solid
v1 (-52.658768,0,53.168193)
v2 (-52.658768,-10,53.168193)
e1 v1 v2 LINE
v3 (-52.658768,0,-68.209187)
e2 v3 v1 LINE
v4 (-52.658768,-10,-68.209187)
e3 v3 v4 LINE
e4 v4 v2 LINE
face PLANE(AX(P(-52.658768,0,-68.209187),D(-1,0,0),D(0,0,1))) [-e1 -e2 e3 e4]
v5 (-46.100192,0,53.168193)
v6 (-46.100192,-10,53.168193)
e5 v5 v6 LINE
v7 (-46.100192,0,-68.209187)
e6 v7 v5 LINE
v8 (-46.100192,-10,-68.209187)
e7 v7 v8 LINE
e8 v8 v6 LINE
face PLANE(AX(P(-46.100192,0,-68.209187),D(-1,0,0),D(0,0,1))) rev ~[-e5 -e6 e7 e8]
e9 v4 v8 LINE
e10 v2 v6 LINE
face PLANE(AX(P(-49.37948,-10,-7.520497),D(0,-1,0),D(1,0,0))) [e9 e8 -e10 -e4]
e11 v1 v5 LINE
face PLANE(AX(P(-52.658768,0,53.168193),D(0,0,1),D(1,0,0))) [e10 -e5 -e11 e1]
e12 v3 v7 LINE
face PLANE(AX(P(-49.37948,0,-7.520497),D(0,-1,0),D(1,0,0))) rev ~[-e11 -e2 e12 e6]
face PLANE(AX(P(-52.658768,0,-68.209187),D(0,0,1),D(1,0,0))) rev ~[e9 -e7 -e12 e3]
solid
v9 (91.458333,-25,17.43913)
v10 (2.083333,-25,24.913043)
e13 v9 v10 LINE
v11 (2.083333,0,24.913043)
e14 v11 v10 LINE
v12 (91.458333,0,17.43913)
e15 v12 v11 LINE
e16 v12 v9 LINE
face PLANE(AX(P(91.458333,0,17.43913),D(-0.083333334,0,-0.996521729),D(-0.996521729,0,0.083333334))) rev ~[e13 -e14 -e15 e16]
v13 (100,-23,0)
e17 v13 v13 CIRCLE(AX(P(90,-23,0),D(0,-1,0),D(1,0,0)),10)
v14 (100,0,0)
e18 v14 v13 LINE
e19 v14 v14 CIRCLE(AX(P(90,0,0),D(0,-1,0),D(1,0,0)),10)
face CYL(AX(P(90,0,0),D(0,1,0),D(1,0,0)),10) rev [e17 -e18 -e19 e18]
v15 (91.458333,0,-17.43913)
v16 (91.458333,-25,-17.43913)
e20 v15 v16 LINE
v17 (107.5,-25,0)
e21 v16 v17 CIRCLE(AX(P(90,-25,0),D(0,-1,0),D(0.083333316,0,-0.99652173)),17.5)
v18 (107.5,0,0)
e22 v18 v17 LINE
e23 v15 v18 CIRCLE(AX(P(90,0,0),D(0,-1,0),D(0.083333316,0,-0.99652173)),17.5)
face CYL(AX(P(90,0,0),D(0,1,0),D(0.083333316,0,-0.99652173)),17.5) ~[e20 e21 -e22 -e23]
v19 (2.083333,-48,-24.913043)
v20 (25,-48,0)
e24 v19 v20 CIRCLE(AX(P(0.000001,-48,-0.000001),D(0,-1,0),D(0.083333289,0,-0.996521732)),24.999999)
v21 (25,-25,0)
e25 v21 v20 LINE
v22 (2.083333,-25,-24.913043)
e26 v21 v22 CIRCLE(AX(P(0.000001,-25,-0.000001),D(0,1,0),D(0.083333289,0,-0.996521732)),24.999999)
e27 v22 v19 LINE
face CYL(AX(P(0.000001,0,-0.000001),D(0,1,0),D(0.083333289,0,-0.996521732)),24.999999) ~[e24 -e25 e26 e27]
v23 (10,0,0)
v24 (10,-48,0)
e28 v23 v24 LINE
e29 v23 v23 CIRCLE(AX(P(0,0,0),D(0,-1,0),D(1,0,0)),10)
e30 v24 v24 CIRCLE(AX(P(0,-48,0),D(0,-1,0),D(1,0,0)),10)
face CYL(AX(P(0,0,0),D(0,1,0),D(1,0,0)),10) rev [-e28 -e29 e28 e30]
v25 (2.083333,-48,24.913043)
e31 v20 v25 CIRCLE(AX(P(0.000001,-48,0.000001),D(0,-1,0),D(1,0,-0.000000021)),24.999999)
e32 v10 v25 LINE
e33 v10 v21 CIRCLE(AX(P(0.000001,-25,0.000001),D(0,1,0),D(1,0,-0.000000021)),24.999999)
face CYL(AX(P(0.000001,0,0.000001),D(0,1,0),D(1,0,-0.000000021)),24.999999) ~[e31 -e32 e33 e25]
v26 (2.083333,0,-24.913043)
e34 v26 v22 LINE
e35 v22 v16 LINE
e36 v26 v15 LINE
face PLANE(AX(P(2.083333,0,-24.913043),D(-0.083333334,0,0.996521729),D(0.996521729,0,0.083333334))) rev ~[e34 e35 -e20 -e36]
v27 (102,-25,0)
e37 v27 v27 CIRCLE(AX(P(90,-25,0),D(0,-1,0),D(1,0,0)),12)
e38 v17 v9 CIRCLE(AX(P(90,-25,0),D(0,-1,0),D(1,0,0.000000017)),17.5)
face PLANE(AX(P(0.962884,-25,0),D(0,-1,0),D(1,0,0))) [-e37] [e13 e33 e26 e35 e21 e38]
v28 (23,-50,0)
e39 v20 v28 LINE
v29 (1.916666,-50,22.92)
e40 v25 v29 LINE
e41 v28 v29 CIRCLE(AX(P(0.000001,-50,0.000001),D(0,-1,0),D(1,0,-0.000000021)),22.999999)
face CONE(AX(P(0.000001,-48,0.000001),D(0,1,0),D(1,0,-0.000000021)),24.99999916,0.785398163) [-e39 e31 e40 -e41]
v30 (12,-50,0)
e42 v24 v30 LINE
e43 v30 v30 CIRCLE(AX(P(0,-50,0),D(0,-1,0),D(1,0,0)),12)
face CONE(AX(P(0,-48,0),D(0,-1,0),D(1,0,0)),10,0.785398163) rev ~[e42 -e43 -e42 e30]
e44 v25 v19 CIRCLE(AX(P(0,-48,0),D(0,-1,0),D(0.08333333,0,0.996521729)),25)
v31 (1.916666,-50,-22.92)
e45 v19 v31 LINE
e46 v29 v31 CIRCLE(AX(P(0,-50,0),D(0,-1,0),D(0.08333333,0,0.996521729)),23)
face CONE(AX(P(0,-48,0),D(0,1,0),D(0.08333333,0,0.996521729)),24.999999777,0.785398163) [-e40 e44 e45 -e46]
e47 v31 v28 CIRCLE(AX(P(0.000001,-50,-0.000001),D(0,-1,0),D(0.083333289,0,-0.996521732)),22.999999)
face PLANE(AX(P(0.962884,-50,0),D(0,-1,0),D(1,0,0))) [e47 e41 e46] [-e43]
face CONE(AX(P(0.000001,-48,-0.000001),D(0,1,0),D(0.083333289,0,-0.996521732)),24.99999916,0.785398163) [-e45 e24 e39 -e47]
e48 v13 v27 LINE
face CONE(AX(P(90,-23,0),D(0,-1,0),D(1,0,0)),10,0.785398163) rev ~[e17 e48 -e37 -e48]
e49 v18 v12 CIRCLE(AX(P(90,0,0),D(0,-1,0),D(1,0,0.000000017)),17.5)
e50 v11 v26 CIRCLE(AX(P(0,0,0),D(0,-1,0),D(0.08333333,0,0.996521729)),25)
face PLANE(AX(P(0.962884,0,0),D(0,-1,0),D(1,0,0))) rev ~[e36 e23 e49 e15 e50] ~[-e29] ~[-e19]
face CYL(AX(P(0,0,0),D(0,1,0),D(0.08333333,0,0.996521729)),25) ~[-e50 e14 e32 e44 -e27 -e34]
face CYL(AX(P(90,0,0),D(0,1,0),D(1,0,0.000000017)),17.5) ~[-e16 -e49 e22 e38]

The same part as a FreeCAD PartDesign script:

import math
import FreeCAD as App
import Part
import Sketcher

V = App.Vector
Q = App.Units.Quantity


def edges_at(feature, points):
    """Names of the edges that pass closest to the given points."""
    edges = feature.Shape.Edges
    near = lambda p: min(range(len(edges)), key=lambda i: edges[i].distToShape(Part.Vertex(*p))[0])
    return sorted({f"Edge{near(p) + 1}" for p in points})

doc = App.newDocument("Part")
params = doc.addObject("Spreadsheet::Sheet", "Params")
for row, (alias, value) in enumerate([
    ("sketch1_diameter", "20 mm"),
    ("sketch1_radius", "25 mm"),
    ("sketch1_radius2", "17.5 mm"),
    ("pad1_length", "25 mm"),
    ("sketch2_diameter", "20 mm"),
    ("sketch2_radius", "24.999999 mm"),
    ("pad2_length", "50 mm"),
    ("chamfer_size", "2 mm"),
    ("pad3_length", "10 mm"),
], start=1):
    params.set(f"A{row}", alias)
    params.set(f"B{row}", "=" + value)
    params.setAlias(f"B{row}", alias)

body = doc.addObject("PartDesign::Body", "Body")

sketch1 = body.newObject("Sketcher::SketchObject", "Sketch")
sketch1.AttachmentSupport = (doc.getObject("XZ_Plane"), [""])
sketch1.MapMode = "FlatFace"
sketch1.addGeometry([
    Part.ArcOfCircle(Part.Circle(V(0, 0, 0), V(0, 0, 1), 25), math.radians(85), math.radians(275)),
    Part.LineSegment(V(2, -25, 0), V(91, -17, 0)),
    Part.ArcOfCircle(Part.Circle(V(90, 0, 0), V(0, 0, 1), 18), math.radians(-85), math.radians(0)),
    Part.ArcOfCircle(Part.Circle(V(90, 0, 0), V(0, 0, 1), 18), math.radians(0), math.radians(85)),
    Part.LineSegment(V(91, 17, 0), V(2, 25, 0)),
    Part.Circle(V(0, 0, 0), V(0, 0, 1), 10),
    Part.Circle(V(90, 0, 0), V(0, 0, 1), 10),
], False)
sketch1.addConstraint([
    Sketcher.Constraint("Tangent", 0, 2, 1, 1),
    Sketcher.Constraint("Tangent", 1, 2, 2, 1),
    Sketcher.Constraint("Tangent", 2, 2, 3, 1),
    Sketcher.Constraint("Tangent", 3, 2, 4, 1),
    Sketcher.Constraint("Tangent", 4, 2, 0, 1),
    Sketcher.Constraint("Coincident", 0, 3, -1, 1),
    Sketcher.Constraint("Coincident", 5, 3, -1, 1),
    Sketcher.Constraint("Coincident", 6, 3, 2, 3),
    Sketcher.Constraint("Equal", 2, 3),
    Sketcher.Constraint("Equal", 5, 6),
    Sketcher.Constraint("PointOnObject", 2, 3, -1),
    Sketcher.Constraint("PointOnObject", 2, 2, -1),
    Sketcher.Constraint("Diameter", 5, Q("20 mm")),
    Sketcher.Constraint("Radius", 0, Q("25 mm")),
    Sketcher.Constraint("Radius", 2, Q("17.5 mm")),
    Sketcher.Constraint("DistanceX", -1, 1, 2, 3, Q("90 mm")),
])
sketch1.setExpression("Constraints[12]", "Params.sketch1_diameter")
sketch1.setExpression("Constraints[13]", "Params.sketch1_radius")
sketch1.setExpression("Constraints[14]", "Params.sketch1_radius2")
pad1 = body.newObject("PartDesign::Pad", "Pad")
pad1.Profile = sketch1
pad1.setExpression("Length", "Params.pad1_length")

sketch2 = body.newObject("Sketcher::SketchObject", "Sketch001")
sketch2.AttachmentSupport = (doc.getObject("XZ_Plane"), [""])
sketch2.MapMode = "FlatFace"
sketch2.addGeometry([
    Part.ArcOfCircle(Part.Circle(V(0, 0, 0), V(0, 0, 1), 25), math.radians(-85), math.radians(0)),
    Part.ArcOfCircle(Part.Circle(V(0, 0, 0), V(0, 0, 1), 25), math.radians(0), math.radians(85)),
    Part.ArcOfCircle(Part.Circle(V(0, 0, 0), V(0, 0, 1), 25), math.radians(85), math.radians(275)),
    Part.Circle(V(0, 0, 0), V(0, 0, 1), 10),
], False)
sketch2.addConstraint([
    Sketcher.Constraint("Tangent", 0, 2, 1, 1),
    Sketcher.Constraint("Tangent", 1, 2, 2, 1),
    Sketcher.Constraint("Tangent", 2, 2, 0, 1),
    Sketcher.Constraint("Coincident", 0, 3, -1, 1),
    Sketcher.Constraint("Coincident", 3, 3, -1, 1),
    Sketcher.Constraint("PointOnObject", 0, 2, -1),
    Sketcher.Constraint("Vertical", 1, 2, 2, 2),
    Sketcher.Constraint("Diameter", 3, Q("20 mm")),
    Sketcher.Constraint("Radius", 0, Q("24.999999 mm")),
    Sketcher.Constraint("DistanceX", -1, 1, 1, 2, Q("2.083333 mm")),
])
sketch2.setExpression("Constraints[7]", "Params.sketch2_diameter")
sketch2.setExpression("Constraints[8]", "Params.sketch2_radius")
pad2 = body.newObject("PartDesign::Pad", "Pad001")
pad2.Profile = sketch2
pad2.setExpression("Length", "Params.pad2_length")
doc.recompute()

chamfer = body.newObject("PartDesign::Chamfer", "Chamfer")
chamfer.Base = (pad2, edges_at(pad2, [(-25, -50, 0), (-10, -50, 0), (80, -25, 0)]))
chamfer.setExpression("Size", "Params.chamfer_size")
body2 = doc.addObject("PartDesign::Body", "Body001")

sketch3 = body2.newObject("Sketcher::SketchObject", "Sketch002")
sketch3.AttachmentSupport = (doc.getObject("XZ_Plane001"), [""])
sketch3.MapMode = "FlatFace"
sketch3.addGeometry([
    Part.LineSegment(V(-53, 53, 0), V(-53, -68, 0)),
    Part.LineSegment(V(-53, -68, 0), V(-46, -68, 0)),
    Part.LineSegment(V(-46, -68, 0), V(-46, 53, 0)),
    Part.LineSegment(V(-46, 53, 0), V(-53, 53, 0)),
], False)
sketch3.addConstraint([
    Sketcher.Constraint("Coincident", 0, 2, 1, 1),
    Sketcher.Constraint("Coincident", 1, 2, 2, 1),
    Sketcher.Constraint("Coincident", 2, 2, 3, 1),
    Sketcher.Constraint("Coincident", 3, 2, 0, 1),
    Sketcher.Constraint("Vertical", 0),
    Sketcher.Constraint("Horizontal", 1),
    Sketcher.Constraint("Vertical", 2),
    Sketcher.Constraint("Horizontal", 3),
    Sketcher.Constraint("DistanceY", 0, 2, 0, 1, Q("121.377379 mm")),
    Sketcher.Constraint("DistanceX", 1, 1, 1, 2, Q("6.558575 mm")),
    Sketcher.Constraint("DistanceX", 0, 2, -1, 1, Q("52.658768 mm")),
    Sketcher.Constraint("DistanceY", 0, 2, -1, 1, Q("68.209187 mm")),
])
pad3 = body2.newObject("PartDesign::Pad", "Pad002")
pad3.Profile = sketch3
pad3.setExpression("Length", "Params.pad3_length")

doc.recompute()
